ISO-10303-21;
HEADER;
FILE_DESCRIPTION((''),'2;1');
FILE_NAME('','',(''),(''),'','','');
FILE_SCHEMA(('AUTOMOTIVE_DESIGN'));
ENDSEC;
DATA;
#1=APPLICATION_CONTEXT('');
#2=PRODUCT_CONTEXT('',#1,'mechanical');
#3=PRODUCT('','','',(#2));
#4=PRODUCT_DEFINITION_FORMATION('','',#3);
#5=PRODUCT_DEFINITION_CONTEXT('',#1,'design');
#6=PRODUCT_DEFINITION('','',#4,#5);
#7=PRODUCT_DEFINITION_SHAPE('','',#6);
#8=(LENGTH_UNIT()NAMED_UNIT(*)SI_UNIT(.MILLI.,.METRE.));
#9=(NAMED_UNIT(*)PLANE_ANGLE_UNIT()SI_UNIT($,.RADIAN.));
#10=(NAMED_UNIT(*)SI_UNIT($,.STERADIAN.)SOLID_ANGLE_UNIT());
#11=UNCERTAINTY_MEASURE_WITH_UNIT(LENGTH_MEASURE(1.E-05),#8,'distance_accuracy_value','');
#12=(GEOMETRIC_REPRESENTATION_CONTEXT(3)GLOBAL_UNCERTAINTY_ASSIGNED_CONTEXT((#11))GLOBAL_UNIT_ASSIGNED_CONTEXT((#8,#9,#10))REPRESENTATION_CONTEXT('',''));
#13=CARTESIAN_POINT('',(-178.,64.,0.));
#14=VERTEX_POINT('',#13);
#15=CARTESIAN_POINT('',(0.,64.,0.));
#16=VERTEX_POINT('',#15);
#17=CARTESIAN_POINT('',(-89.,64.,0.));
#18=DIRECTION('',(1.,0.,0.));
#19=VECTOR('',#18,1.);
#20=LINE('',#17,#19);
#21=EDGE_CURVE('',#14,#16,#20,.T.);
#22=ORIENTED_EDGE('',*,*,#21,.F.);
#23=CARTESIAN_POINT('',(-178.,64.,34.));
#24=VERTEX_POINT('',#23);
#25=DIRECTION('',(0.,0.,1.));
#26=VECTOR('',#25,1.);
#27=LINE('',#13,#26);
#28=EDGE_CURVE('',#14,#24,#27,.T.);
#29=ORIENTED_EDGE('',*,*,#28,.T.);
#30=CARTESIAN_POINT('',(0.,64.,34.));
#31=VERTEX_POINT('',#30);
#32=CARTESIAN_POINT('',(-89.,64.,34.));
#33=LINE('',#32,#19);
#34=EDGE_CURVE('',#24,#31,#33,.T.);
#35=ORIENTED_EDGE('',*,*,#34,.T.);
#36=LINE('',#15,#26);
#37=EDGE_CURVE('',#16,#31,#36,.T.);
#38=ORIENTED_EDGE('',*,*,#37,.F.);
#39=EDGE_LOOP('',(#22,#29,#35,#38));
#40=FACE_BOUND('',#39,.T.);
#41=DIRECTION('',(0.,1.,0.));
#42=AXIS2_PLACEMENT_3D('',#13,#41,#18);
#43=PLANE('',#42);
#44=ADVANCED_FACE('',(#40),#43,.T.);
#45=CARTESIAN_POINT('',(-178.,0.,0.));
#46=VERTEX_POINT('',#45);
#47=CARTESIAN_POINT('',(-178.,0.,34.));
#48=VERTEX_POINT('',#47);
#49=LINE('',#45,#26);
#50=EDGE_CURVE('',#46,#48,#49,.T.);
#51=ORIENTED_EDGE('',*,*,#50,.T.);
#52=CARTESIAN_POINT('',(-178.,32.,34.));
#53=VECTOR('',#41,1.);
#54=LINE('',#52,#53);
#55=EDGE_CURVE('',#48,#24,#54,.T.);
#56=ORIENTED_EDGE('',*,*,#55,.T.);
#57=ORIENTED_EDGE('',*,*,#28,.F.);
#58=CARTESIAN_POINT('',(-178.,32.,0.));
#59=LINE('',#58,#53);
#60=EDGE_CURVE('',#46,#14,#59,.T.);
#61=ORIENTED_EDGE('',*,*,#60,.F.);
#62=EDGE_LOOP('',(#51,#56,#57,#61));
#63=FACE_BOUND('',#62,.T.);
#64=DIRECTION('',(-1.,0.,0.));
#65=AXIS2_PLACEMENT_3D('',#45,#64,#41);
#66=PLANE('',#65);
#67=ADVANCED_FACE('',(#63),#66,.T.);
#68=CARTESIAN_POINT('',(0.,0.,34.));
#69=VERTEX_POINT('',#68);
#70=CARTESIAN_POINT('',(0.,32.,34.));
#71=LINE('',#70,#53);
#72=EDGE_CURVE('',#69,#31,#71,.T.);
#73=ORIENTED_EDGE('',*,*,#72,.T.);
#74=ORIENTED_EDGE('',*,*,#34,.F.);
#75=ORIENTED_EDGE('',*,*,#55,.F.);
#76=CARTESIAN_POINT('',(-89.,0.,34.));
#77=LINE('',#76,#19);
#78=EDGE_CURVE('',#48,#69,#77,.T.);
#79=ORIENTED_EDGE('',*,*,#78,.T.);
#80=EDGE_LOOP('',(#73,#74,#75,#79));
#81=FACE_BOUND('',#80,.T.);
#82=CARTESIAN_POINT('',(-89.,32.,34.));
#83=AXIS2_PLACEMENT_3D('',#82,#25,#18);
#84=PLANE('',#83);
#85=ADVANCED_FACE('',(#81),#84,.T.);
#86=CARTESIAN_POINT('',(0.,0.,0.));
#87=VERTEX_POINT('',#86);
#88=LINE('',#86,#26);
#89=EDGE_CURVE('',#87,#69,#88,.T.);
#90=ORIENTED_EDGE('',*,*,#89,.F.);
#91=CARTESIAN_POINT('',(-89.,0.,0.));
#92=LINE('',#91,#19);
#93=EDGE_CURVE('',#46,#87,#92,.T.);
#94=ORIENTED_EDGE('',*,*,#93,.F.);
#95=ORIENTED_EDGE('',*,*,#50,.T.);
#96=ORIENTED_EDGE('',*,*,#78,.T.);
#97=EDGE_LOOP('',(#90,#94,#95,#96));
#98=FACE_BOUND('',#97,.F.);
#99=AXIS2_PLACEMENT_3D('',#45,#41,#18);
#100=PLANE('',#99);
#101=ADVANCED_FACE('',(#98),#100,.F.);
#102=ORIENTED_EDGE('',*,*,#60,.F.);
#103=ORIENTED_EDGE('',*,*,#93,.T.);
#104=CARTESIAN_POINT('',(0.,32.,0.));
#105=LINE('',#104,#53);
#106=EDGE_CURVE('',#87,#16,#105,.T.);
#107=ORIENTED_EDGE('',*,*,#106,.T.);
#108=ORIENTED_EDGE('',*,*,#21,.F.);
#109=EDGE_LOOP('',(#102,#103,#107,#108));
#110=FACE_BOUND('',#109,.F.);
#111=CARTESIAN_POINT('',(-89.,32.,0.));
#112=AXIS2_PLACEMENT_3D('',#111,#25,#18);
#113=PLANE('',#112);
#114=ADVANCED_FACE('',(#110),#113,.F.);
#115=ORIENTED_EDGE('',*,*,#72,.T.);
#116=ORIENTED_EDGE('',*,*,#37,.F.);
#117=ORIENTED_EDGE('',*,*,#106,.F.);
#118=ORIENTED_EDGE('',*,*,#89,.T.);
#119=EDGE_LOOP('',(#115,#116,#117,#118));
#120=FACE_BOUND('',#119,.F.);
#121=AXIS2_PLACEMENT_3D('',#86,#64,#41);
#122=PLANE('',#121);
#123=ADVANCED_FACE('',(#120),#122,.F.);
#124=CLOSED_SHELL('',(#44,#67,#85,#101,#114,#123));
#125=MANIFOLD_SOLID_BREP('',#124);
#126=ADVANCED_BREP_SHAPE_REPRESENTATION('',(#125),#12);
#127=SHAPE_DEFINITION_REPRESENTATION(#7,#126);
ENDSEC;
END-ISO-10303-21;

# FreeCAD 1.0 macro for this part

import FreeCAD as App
import Part
import Sketcher
from FreeCAD import Vector
Q = App.Units.Quantity

doc = App.newDocument("Part")
body = doc.addObject("PartDesign::Body", "Body")

# Sketch on XY plane
sketch1 = body.newObject("Sketcher::SketchObject", "Sketch")
sketch1.AttachmentSupport = (doc.getObject("XY_Plane"), [""])
sketch1.MapMode = "FlatFace"
sketch1.addGeometry([
    Part.LineSegment(Vector(-178, 64, 0), Vector(-178, 0, 0)),
    Part.LineSegment(Vector(-178, 0, 0), Vector(0, 0, 0)),
    Part.LineSegment(Vector(0, 0, 0), Vector(0, 64, 0)),
    Part.LineSegment(Vector(0, 64, 0), Vector(-178, 64, 0)),
], False)
sketch1.addConstraint([
    Sketcher.Constraint("Coincident", 0, 2, 1, 1),
    Sketcher.Constraint("Coincident", 1, 2, 2, 1),
    Sketcher.Constraint("Coincident", 2, 2, 3, 1),
    Sketcher.Constraint("Coincident", 3, 2, 0, 1),
    Sketcher.Constraint("Vertical", 0),
    Sketcher.Constraint("Horizontal", 1),
    Sketcher.Constraint("Vertical", 2),
    Sketcher.Constraint("Horizontal", 3),
    Sketcher.Constraint("Coincident", 1, 2, -1, 1),
    Sketcher.Constraint("DistanceX", 1, 1, 1, 2, Q("178 mm")),
    Sketcher.Constraint("DistanceY", 0, 2, 0, 1, Q("64 mm")),
])
pad1 = body.newObject("PartDesign::Pad", "Pad")
pad1.Profile = sketch1
pad1.Length = 34

doc.recompute()
